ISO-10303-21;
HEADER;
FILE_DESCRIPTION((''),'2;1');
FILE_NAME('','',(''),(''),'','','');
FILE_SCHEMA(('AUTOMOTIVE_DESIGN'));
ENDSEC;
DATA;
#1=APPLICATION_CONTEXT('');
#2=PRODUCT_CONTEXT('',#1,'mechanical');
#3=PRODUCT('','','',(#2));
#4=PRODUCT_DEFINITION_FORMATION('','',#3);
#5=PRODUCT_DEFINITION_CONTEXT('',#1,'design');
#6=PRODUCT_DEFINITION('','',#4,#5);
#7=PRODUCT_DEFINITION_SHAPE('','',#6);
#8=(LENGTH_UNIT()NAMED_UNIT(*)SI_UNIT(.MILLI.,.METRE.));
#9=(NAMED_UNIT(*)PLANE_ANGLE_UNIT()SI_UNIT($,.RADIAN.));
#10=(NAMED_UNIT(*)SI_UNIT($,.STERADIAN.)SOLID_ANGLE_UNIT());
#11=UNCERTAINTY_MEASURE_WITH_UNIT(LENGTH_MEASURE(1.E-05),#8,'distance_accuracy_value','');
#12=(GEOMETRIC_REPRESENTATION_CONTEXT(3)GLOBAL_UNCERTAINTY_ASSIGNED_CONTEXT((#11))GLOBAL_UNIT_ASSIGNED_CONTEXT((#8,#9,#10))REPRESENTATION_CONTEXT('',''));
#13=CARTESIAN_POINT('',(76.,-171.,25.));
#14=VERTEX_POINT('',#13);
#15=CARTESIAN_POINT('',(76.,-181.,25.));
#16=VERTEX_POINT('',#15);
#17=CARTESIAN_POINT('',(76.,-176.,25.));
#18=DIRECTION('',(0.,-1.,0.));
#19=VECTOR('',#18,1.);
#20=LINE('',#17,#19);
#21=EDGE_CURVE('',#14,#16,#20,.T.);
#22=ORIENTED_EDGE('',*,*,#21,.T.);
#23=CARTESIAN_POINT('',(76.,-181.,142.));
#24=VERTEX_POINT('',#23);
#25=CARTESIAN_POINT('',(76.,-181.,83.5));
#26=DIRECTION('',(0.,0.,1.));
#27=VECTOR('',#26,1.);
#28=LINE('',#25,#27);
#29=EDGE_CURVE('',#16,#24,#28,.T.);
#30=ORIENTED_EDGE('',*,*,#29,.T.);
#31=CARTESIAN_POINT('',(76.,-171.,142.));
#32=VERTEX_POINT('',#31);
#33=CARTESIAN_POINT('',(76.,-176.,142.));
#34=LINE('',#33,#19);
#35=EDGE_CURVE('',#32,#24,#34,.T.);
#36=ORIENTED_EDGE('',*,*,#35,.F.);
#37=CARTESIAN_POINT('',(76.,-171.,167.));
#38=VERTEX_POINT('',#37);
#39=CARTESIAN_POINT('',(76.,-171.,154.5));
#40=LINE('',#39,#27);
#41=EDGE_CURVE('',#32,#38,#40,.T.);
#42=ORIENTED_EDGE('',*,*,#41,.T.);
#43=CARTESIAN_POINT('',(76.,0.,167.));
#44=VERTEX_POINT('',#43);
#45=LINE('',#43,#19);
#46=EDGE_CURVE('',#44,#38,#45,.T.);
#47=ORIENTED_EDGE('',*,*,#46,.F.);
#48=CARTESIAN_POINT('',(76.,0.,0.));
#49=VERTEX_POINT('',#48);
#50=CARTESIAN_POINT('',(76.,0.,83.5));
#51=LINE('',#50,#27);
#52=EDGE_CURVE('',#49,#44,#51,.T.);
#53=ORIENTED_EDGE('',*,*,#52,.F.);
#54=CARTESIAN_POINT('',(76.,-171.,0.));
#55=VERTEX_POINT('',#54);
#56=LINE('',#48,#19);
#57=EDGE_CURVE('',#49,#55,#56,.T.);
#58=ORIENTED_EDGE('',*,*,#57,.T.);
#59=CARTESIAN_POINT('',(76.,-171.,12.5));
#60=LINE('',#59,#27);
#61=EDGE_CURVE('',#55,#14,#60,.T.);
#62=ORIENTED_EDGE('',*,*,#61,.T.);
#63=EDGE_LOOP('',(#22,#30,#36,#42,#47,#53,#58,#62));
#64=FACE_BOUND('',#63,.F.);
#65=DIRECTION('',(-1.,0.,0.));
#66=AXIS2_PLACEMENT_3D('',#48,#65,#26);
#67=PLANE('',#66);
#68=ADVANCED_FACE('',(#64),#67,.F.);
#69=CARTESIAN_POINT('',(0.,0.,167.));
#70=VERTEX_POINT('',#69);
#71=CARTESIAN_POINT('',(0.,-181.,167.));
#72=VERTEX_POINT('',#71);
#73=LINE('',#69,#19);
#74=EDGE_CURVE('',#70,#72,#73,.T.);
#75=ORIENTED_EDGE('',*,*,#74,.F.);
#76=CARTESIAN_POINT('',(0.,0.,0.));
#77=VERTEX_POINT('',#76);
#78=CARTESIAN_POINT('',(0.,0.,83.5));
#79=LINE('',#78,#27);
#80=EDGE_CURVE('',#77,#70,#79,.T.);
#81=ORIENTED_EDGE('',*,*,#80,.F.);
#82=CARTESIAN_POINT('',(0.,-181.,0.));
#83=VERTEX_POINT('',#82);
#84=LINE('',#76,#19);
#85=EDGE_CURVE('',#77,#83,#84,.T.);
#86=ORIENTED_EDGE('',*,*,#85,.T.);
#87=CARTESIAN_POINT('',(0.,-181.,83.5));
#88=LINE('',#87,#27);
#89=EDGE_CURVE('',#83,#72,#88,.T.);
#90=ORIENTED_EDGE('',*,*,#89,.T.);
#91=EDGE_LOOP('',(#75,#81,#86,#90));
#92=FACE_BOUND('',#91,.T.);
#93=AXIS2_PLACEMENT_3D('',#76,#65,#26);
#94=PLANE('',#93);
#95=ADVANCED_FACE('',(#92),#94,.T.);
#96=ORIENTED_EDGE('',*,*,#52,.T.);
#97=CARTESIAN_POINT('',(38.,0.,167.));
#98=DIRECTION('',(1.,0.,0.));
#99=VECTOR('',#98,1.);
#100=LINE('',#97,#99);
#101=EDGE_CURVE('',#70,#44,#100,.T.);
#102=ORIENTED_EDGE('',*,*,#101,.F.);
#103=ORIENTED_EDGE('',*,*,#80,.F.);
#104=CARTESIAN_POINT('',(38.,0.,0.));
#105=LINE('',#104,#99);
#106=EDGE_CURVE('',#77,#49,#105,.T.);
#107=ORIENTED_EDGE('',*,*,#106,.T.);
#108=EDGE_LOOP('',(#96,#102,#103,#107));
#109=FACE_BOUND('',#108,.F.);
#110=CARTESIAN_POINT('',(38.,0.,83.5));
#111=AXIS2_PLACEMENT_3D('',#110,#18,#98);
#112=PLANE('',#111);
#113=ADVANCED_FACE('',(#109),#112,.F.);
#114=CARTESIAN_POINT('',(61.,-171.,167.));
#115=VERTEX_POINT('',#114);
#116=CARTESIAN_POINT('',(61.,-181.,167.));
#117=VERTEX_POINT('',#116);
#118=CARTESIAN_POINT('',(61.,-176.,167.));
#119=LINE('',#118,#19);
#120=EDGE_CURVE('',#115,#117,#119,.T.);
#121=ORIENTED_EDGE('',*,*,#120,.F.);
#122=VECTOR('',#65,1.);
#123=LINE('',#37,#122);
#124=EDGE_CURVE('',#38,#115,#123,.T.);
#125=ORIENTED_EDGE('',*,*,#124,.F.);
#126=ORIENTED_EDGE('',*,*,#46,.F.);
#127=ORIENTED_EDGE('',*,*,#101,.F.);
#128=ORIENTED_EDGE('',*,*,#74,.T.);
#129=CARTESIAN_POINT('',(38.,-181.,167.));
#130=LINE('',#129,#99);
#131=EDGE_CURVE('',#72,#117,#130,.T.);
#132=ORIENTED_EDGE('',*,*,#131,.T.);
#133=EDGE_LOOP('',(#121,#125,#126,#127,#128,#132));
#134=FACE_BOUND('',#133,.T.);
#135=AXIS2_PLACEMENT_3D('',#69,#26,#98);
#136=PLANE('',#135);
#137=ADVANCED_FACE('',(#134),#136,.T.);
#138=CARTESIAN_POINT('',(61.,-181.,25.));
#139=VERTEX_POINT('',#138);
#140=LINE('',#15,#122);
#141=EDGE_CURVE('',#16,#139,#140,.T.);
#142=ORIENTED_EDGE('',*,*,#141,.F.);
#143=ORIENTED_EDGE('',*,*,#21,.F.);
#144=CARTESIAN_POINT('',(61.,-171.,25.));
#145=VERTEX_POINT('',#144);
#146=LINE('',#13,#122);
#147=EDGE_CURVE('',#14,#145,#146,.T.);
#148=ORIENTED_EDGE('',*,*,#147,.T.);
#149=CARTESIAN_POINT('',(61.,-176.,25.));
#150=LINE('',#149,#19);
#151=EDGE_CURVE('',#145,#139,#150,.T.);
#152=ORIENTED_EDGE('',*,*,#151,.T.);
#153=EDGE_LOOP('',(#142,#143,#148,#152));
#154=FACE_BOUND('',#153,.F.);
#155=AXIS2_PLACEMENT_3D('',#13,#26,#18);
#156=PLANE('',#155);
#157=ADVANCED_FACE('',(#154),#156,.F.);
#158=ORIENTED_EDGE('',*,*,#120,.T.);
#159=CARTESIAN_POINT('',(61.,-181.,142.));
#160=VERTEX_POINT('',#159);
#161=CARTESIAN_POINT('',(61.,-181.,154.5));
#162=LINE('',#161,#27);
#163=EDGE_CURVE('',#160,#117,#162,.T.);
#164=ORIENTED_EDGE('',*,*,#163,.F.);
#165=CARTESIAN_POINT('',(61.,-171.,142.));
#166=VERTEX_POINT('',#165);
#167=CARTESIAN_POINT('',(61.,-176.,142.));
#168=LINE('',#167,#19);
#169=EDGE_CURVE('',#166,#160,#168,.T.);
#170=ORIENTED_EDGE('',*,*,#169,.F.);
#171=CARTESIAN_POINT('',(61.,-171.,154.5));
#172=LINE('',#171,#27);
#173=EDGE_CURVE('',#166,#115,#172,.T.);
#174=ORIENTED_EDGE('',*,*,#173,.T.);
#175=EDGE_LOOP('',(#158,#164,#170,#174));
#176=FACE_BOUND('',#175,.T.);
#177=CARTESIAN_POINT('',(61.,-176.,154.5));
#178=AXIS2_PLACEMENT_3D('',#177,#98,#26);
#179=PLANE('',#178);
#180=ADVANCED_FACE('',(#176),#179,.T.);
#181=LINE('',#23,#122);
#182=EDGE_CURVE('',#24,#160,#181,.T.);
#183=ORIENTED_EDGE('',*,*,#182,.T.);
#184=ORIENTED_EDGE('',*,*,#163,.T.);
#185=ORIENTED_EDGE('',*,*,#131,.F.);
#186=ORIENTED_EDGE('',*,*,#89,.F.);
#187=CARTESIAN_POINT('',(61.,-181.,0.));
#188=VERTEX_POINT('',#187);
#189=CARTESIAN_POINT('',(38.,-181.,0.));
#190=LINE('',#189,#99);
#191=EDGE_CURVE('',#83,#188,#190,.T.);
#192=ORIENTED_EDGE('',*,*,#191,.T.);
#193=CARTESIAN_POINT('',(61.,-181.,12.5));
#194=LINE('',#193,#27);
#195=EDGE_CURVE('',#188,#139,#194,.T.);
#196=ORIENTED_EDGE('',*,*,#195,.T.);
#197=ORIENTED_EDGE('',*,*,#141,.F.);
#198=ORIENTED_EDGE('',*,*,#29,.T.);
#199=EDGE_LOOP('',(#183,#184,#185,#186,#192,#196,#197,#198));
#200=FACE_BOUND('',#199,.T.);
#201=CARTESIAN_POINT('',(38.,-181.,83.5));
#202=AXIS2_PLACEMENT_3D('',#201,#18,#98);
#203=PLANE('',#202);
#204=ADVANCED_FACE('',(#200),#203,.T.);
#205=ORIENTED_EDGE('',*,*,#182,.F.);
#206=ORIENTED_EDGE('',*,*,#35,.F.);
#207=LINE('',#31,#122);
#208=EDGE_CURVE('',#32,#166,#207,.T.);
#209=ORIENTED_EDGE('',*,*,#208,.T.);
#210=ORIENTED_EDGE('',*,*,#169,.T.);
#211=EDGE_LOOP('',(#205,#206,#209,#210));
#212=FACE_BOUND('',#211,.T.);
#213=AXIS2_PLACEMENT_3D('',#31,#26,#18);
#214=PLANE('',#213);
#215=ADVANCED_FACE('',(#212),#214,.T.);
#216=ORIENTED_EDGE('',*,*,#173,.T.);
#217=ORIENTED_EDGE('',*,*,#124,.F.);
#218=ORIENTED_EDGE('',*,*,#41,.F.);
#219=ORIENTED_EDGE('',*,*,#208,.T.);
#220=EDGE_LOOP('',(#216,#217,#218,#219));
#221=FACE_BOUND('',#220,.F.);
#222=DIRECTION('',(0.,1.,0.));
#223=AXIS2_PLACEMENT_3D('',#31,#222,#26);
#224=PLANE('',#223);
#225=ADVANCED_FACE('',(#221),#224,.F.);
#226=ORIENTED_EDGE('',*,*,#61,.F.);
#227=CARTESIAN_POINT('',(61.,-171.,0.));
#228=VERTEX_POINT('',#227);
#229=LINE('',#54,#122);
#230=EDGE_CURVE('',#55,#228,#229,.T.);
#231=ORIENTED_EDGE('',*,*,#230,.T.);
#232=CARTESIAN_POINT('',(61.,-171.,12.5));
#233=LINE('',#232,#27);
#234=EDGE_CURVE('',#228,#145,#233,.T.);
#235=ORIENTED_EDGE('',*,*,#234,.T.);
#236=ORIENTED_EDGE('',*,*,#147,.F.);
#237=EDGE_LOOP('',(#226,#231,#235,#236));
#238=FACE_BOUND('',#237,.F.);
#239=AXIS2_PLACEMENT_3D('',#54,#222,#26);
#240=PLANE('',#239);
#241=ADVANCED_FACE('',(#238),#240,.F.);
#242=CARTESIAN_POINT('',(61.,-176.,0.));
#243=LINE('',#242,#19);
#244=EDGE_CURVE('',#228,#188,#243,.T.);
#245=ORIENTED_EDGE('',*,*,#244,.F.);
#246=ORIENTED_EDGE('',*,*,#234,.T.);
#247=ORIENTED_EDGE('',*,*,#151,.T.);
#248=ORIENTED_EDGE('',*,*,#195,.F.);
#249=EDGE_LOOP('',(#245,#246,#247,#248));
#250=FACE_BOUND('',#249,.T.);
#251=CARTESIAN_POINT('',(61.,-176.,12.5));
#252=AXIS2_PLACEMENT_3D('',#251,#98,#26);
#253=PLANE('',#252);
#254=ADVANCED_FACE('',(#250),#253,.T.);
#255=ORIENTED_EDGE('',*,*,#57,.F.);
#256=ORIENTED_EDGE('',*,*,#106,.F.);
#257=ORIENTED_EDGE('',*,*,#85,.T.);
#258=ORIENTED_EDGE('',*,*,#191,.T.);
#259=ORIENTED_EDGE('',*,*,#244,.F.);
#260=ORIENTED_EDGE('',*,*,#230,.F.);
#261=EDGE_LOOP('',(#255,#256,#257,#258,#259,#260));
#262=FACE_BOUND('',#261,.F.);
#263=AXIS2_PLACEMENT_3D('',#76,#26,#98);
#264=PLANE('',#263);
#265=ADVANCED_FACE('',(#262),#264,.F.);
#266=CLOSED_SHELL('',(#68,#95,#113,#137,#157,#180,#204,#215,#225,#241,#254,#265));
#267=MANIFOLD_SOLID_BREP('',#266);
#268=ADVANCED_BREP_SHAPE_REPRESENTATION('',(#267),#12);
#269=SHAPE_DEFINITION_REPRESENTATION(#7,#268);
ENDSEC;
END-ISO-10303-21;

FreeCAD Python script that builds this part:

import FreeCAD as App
import Part
import Sketcher

V = App.Vector


def add_polygon(sketch, points):
    """Adds a closed chain of lines whose ends are joined by coincident constraints."""
    first, n = sketch.GeometryCount, len(points)
    for a, b in zip(points, points[1:] + points[:1]):
        sketch.addGeometry(Part.LineSegment(App.Vector(*a, 0), App.Vector(*b, 0)), False)
    for i in range(n):
        sketch.addConstraint(Sketcher.Constraint("Coincident", first + i, 2, first + (i + 1) % n, 1))

doc = App.newDocument("Part")
body = doc.addObject("PartDesign::Body", "Body")

# Sketch on XZ plane
sketch1 = doc.addObject("Sketcher::SketchObject", "Sketch")
body.addObject(sketch1)
sketch1.AttachmentSupport = (doc.XZ_Plane, [""])
sketch1.MapMode = "FlatFace"
add_polygon(sketch1, [(0, 167), (0, 0), (76, 0), (76, 167)])  # lines 0-3
sketch1.addConstraint(Sketcher.Constraint("Vertical", 0))
sketch1.addConstraint(Sketcher.Constraint("Horizontal", 1))
sketch1.addConstraint(Sketcher.Constraint("Vertical", 2))
sketch1.addConstraint(Sketcher.Constraint("Horizontal", 3))
sketch1.addConstraint(Sketcher.Constraint("Coincident", 0, 2, -1, 1))
sketch1.addConstraint(Sketcher.Constraint("DistanceX", 1, 1, 1, 2, 76.0))
sketch1.addConstraint(Sketcher.Constraint("DistanceY", 0, 2, 0, 1, 167.0))
pad1 = doc.addObject("PartDesign::Pad", "Pad")
body.addObject(pad1)
pad1.Profile = sketch1
pad1.Length = 181

# Sketch on YZ plane
sketch2 = doc.addObject("Sketcher::SketchObject", "Sketch001")
body.addObject(sketch2)
sketch2.AttachmentSupport = (doc.YZ_Plane, [""])
sketch2.MapMode = "FlatFace"
sketch2.AttachmentOffset = App.Placement(V(0, 0, 76), App.Rotation())
add_polygon(sketch2, [(-181, 0), (-171, 0), (-171, 25), (-181, 25)])  # lines 0-3
add_polygon(sketch2, [(-181, 142), (-171, 142), (-171, 167), (-181, 167)])  # lines 4-7
sketch2.addConstraint(Sketcher.Constraint("Horizontal", 0))
sketch2.addConstraint(Sketcher.Constraint("Vertical", 1))
sketch2.addConstraint(Sketcher.Constraint("Horizontal", 2))
sketch2.addConstraint(Sketcher.Constraint("Vertical", 3))
sketch2.addConstraint(Sketcher.Constraint("Horizontal", 4))
sketch2.addConstraint(Sketcher.Constraint("Vertical", 5))
sketch2.addConstraint(Sketcher.Constraint("Horizontal", 6))
sketch2.addConstraint(Sketcher.Constraint("Vertical", 7))
sketch2.addConstraint(Sketcher.Constraint("PointOnObject", 0, 2, -1))
sketch2.addConstraint(Sketcher.Constraint("Vertical", 1, 2, 4, 2))
sketch2.addConstraint(Sketcher.Constraint("Vertical", 3, 2, 6, 2))
sketch2.addConstraint(Sketcher.Constraint("Equal", 3, 5))
sketch2.addConstraint(Sketcher.Constraint("DistanceX", 0, 1, 0, 2, 10.0))
sketch2.addConstraint(Sketcher.Constraint("DistanceY", 1, 1, 1, 2, 25.0))
sketch2.addConstraint(Sketcher.Constraint("DistanceX", 0, 2, -1, 1, 171.0))
sketch2.addConstraint(Sketcher.Constraint("DistanceY", -1, 1, 4, 2, 142.0))
pocket1 = doc.addObject("PartDesign::Pocket", "Pocket")
body.addObject(pocket1)
pocket1.Profile = sketch2
pocket1.Length = 15

doc.recompute()
